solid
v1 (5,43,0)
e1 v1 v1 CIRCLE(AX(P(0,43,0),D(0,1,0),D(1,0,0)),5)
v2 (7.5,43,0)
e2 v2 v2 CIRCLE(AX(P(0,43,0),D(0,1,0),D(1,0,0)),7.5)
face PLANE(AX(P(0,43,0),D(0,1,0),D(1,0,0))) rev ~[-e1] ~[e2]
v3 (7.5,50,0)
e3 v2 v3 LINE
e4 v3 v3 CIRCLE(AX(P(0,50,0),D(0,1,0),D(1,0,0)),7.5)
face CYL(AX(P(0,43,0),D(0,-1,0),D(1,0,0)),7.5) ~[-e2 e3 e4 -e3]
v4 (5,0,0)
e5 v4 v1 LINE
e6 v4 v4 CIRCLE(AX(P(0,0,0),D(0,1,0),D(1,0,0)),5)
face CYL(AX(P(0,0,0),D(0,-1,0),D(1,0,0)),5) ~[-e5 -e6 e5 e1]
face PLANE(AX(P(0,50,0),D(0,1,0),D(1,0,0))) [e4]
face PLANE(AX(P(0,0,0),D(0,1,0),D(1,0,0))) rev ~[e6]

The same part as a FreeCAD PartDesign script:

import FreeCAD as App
import Part
import Sketcher

doc = App.newDocument("Part")
body = doc.addObject("PartDesign::Body", "Body")

# Sketch on XZ plane
sketch1 = doc.addObject("Sketcher::SketchObject", "Sketch")
body.addObject(sketch1)
sketch1.AttachmentSupport = (doc.XZ_Plane, [""])
sketch1.MapMode = "FlatFace"
sketch1.addGeometry(Part.Circle(App.Vector(0, 0, 0), App.Vector(0, 0, 1), 5), False)
sketch1.addConstraint(Sketcher.Constraint("Coincident", 0, 3, -1, 1))
sketch1.addConstraint(Sketcher.Constraint("Diameter", 0, 10.0))
pad1 = doc.addObject("PartDesign::Pad", "Pad")
body.addObject(pad1)
pad1.Profile = sketch1
pad1.Length = 43
pad1.Reversed = True

# Sketch on XZ plane
sketch2 = doc.addObject("Sketcher::SketchObject", "Sketch001")
body.addObject(sketch2)
sketch2.AttachmentSupport = (doc.XZ_Plane, [""])
sketch2.MapMode = "FlatFace"
sketch2.AttachmentOffset = App.Placement(App.Vector(0, 0, -43), App.Rotation())
sketch2.addGeometry(Part.Circle(App.Vector(0, 0, 0), App.Vector(0, 0, 1), 8), False)
sketch2.addConstraint(Sketcher.Constraint("Coincident", 0, 3, -1, 1))
sketch2.addConstraint(Sketcher.Constraint("Diameter", 0, 15.0))
pad2 = doc.addObject("PartDesign::Pad", "Pad001")
body.addObject(pad2)
pad2.Profile = sketch2
pad2.Length = 7
pad2.Reversed = True

doc.recompute()
